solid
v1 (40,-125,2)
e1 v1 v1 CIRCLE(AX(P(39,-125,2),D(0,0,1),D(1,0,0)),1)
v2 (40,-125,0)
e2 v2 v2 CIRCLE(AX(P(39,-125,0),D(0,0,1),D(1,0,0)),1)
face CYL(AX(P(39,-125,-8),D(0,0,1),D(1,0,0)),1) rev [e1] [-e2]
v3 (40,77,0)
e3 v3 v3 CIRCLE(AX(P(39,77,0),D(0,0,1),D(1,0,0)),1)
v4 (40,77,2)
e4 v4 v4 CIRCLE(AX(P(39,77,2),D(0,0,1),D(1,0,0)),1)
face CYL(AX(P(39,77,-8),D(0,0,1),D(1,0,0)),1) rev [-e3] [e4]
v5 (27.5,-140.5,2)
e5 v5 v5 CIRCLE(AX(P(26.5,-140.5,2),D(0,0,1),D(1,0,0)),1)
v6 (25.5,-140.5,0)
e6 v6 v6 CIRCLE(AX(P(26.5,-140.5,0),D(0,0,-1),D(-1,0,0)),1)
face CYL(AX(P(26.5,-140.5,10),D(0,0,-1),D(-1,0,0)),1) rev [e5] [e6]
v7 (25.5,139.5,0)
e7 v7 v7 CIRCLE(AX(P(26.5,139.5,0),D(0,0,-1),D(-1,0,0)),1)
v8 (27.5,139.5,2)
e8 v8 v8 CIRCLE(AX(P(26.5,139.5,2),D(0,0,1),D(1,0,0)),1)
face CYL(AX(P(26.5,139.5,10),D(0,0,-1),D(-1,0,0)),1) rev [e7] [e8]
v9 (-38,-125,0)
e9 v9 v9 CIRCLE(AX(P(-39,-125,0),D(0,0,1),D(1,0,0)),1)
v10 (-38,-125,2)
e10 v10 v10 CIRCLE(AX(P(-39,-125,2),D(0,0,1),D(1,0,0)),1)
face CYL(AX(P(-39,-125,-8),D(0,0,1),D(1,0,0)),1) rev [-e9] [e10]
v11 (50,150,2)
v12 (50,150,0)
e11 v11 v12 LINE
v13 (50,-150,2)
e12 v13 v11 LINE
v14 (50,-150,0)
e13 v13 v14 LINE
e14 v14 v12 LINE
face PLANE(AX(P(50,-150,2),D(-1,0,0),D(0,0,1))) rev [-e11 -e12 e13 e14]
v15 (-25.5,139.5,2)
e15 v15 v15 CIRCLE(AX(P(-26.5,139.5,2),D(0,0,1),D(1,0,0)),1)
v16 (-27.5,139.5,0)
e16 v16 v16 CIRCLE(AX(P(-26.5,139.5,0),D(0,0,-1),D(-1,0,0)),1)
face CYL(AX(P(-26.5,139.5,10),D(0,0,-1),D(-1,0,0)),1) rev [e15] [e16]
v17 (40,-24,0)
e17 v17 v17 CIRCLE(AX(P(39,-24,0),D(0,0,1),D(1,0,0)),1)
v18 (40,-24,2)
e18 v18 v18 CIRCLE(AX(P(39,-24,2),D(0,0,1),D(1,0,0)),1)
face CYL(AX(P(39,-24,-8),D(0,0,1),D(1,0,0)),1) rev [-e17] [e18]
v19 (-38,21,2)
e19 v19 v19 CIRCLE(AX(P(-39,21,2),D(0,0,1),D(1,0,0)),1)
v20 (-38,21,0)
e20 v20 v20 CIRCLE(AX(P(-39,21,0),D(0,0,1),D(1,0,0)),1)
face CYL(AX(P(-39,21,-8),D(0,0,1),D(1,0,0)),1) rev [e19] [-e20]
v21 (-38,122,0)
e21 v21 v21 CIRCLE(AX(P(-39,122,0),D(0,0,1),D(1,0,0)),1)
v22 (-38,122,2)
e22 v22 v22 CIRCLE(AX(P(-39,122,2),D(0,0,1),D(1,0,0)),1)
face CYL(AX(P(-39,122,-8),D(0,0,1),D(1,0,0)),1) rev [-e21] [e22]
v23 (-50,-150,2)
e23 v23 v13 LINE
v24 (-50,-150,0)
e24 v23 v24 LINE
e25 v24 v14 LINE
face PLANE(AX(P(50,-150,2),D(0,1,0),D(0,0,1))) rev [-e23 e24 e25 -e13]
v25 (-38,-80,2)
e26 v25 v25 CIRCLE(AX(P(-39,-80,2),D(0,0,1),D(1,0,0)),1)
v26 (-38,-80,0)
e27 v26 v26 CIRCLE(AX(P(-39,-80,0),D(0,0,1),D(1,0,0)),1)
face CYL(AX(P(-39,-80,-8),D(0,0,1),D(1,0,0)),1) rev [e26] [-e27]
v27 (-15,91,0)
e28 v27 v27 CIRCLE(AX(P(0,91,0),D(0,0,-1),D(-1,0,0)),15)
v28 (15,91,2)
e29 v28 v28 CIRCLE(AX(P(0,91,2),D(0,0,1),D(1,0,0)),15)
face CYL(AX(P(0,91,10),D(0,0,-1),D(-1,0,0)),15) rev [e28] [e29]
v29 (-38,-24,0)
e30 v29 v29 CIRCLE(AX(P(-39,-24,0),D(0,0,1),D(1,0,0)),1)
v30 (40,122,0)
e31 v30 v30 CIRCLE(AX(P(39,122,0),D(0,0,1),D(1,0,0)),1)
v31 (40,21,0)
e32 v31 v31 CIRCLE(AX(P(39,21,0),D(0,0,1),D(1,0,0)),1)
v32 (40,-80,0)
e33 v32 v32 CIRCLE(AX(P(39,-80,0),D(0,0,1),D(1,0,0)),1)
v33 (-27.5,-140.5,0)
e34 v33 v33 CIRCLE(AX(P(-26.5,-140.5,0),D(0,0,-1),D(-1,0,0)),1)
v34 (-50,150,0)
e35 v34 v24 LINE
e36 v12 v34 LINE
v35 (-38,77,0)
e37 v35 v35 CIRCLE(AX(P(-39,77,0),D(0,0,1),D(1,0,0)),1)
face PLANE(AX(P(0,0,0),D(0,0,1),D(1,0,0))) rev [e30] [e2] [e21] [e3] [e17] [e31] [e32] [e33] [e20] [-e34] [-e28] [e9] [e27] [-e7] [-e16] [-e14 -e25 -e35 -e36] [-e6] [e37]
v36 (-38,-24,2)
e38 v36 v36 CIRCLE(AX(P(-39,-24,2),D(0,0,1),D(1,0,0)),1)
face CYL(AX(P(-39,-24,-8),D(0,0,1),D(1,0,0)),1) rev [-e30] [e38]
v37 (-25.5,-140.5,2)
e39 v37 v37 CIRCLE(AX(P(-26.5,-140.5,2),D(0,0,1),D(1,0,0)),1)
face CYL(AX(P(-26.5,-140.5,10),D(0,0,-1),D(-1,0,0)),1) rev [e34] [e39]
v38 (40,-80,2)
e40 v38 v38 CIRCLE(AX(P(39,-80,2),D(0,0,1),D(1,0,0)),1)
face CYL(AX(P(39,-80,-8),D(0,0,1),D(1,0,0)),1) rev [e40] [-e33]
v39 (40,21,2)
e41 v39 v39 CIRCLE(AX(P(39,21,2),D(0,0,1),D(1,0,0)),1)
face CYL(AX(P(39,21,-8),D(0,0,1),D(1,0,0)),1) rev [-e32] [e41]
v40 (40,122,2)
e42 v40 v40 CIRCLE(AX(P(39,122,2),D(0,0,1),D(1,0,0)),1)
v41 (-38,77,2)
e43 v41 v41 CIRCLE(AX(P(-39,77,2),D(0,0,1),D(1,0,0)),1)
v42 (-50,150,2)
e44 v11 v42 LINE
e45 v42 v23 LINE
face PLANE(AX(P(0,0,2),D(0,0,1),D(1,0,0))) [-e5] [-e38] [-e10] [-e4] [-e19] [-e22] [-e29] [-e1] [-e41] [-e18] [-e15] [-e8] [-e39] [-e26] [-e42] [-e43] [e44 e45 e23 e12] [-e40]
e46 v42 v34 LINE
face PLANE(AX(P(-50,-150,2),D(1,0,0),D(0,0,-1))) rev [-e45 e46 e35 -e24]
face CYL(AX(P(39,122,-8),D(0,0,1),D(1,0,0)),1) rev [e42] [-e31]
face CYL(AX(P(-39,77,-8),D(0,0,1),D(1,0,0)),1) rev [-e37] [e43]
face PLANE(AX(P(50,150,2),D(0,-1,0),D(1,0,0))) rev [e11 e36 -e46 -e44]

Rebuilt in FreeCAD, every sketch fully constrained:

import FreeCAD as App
import Part
import Sketcher

V = App.Vector


def add_polygon(sketch, points):
    """Adds a closed chain of lines whose ends are joined by coincident constraints."""
    first, n = sketch.GeometryCount, len(points)
    for a, b in zip(points, points[1:] + points[:1]):
        sketch.addGeometry(Part.LineSegment(App.Vector(*a, 0), App.Vector(*b, 0)), False)
    for i in range(n):
        sketch.addConstraint(Sketcher.Constraint("Coincident", first + i, 2, first + (i + 1) % n, 1))

doc = App.newDocument("Part")
body = doc.addObject("PartDesign::Body", "Body")

sketch1 = body.newObject("Sketcher::SketchObject", "Sketch")
sketch1.AttachmentSupport = (doc.getObject("XY_Plane"), [""])
sketch1.MapMode = "FlatFace"
add_polygon(sketch1, [(-50, 150), (-50, -150), (50, -150), (50, 150)])
sketch1.addConstraint([
    Sketcher.Constraint("Vertical", 0),
    Sketcher.Constraint("Horizontal", 1),
    Sketcher.Constraint("Vertical", 2),
    Sketcher.Constraint("Horizontal", 3),
    Sketcher.Constraint("Symmetric", 0, 2, 2, 2, -1, 1),
    Sketcher.Constraint("DistanceX", 1, 1, 1, 2, 100.0),
    Sketcher.Constraint("DistanceY", 0, 2, 0, 1, 300.0),
])
pad1 = body.newObject("PartDesign::Pad", "Pad")
pad1.Profile = sketch1
pad1.Length = 2

sketch2 = body.newObject("Sketcher::SketchObject", "Sketch001")
sketch2.AttachmentSupport = (doc.getObject("XY_Plane"), [""])
sketch2.MapMode = "FlatFace"
sketch2.AttachmentOffset = App.Placement(V(0, 0, 2), App.Rotation())
sketch2.addGeometry([
    Part.Circle(V(-39, 122, 0), V(0, 0, 1), 1),
    Part.Circle(V(-39, 77, 0), V(0, 0, 1), 1),
    Part.Circle(V(39, 122, 0), V(0, 0, 1), 1),
    Part.Circle(V(39, 77, 0), V(0, 0, 1), 1),
    Part.Circle(V(-39, 21, 0), V(0, 0, 1), 1),
    Part.Circle(V(-39, -24, 0), V(0, 0, 1), 1),
    Part.Circle(V(39, 21, 0), V(0, 0, 1), 1),
    Part.Circle(V(39, -24, 0), V(0, 0, 1), 1),
    Part.Circle(V(-39, -80, 0), V(0, 0, 1), 1),
    Part.Circle(V(-39, -125, 0), V(0, 0, 1), 1),
    Part.Circle(V(39, -80, 0), V(0, 0, 1), 1),
    Part.Circle(V(39, -125, 0), V(0, 0, 1), 1),
], False)
sketch2.addConstraint([
    Sketcher.Constraint("Equal", 0, 1),
    Sketcher.Constraint("Equal", 1, 2),
    Sketcher.Constraint("Equal", 2, 3),
    Sketcher.Constraint("Equal", 3, 4),
    Sketcher.Constraint("Equal", 4, 5),
    Sketcher.Constraint("Equal", 5, 6),
    Sketcher.Constraint("Equal", 6, 7),
    Sketcher.Constraint("Equal", 7, 8),
    Sketcher.Constraint("Equal", 8, 9),
    Sketcher.Constraint("Equal", 9, 10),
    Sketcher.Constraint("Equal", 10, 11),
    Sketcher.Constraint("Symmetric", 0, 3, 2, 3, -2),
    Sketcher.Constraint("Symmetric", 1, 3, 3, 3, -2),
    Sketcher.Constraint("Symmetric", 4, 3, 6, 3, -2),
    Sketcher.Constraint("Symmetric", 5, 3, 7, 3, -2),
    Sketcher.Constraint("Symmetric", 8, 3, 10, 3, -2),
    Sketcher.Constraint("Symmetric", 9, 3, 11, 3, -2),
    Sketcher.Constraint("Vertical", 0, 3, 1, 3),
    Sketcher.Constraint("Vertical", 1, 3, 4, 3),
    Sketcher.Constraint("Vertical", 4, 3, 5, 3),
    Sketcher.Constraint("Vertical", 5, 3, 8, 3),
    Sketcher.Constraint("Vertical", 8, 3, 9, 3),
    Sketcher.Constraint("Diameter", 0, 2.0),
    Sketcher.Constraint("DistanceX", 0, 3, -1, 1, 39.0),
    Sketcher.Constraint("DistanceY", -1, 1, 0, 3, 122.0),
    Sketcher.Constraint("DistanceY", -1, 1, 1, 3, 77.0),
    Sketcher.Constraint("DistanceY", -1, 1, 4, 3, 21.0),
    Sketcher.Constraint("DistanceY", 5, 3, -1, 1, 24.0),
    Sketcher.Constraint("DistanceY", 8, 3, -1, 1, 80.0),
    Sketcher.Constraint("DistanceY", 9, 3, -1, 1, 125.0),
])
pocket1 = body.newObject("PartDesign::Pocket", "Pocket")
pocket1.Profile = sketch2
pocket1.Length = 10

sketch3 = body.newObject("Sketcher::SketchObject", "Sketch002")
sketch3.AttachmentSupport = (doc.getObject("XY_Plane"), [""])
sketch3.MapMode = "FlatFace"
sketch3.addGeometry(Part.Circle(V(0, 91, 0), V(0, 0, 1), 15), False)
sketch3.addConstraint([
    Sketcher.Constraint("PointOnObject", 0, 3, -2),
    Sketcher.Constraint("Diameter", 0, 30.0),
    Sketcher.Constraint("DistanceY", -1, 1, 0, 3, 91.0),
])
pocket2 = body.newObject("PartDesign::Pocket", "Pocket001")
pocket2.Profile = sketch3
pocket2.Length = 10
pocket2.Reversed = True

sketch4 = body.newObject("Sketcher::SketchObject", "Sketch003")
sketch4.AttachmentSupport = (doc.getObject("XY_Plane"), [""])
sketch4.MapMode = "FlatFace"
sketch4.addGeometry([
    Part.Circle(V(26.5, 139.5, 0), V(0, 0, 1), 1),
    Part.Circle(V(-26.5, 139.5, 0), V(0, 0, 1), 1),
    Part.Circle(V(26.5, -140.5, 0), V(0, 0, 1), 1),
    Part.Circle(V(-26.5, -140.5, 0), V(0, 0, 1), 1),
], False)
sketch4.addConstraint([
    Sketcher.Constraint("Equal", 0, 1),
    Sketcher.Constraint("Equal", 1, 2),
    Sketcher.Constraint("Equal", 2, 3),
    Sketcher.Constraint("Symmetric", 0, 3, 1, 3, -2),
    Sketcher.Constraint("Symmetric", 2, 3, 3, 3, -2),
    Sketcher.Constraint("Vertical", 0, 3, 2, 3),
    Sketcher.Constraint("Diameter", 0, 2.0),
    Sketcher.Constraint("DistanceX", 1, 3, 0, 3, 53.0),
    Sketcher.Constraint("DistanceY", 2, 3, 0, 3, 280.0),
    Sketcher.Constraint("DistanceY", -1, 1, 0, 3, 139.5),
])
pocket3 = body.newObject("PartDesign::Pocket", "Pocket002")
pocket3.Profile = sketch4
pocket3.Length = 10
pocket3.Reversed = True

doc.recompute()
